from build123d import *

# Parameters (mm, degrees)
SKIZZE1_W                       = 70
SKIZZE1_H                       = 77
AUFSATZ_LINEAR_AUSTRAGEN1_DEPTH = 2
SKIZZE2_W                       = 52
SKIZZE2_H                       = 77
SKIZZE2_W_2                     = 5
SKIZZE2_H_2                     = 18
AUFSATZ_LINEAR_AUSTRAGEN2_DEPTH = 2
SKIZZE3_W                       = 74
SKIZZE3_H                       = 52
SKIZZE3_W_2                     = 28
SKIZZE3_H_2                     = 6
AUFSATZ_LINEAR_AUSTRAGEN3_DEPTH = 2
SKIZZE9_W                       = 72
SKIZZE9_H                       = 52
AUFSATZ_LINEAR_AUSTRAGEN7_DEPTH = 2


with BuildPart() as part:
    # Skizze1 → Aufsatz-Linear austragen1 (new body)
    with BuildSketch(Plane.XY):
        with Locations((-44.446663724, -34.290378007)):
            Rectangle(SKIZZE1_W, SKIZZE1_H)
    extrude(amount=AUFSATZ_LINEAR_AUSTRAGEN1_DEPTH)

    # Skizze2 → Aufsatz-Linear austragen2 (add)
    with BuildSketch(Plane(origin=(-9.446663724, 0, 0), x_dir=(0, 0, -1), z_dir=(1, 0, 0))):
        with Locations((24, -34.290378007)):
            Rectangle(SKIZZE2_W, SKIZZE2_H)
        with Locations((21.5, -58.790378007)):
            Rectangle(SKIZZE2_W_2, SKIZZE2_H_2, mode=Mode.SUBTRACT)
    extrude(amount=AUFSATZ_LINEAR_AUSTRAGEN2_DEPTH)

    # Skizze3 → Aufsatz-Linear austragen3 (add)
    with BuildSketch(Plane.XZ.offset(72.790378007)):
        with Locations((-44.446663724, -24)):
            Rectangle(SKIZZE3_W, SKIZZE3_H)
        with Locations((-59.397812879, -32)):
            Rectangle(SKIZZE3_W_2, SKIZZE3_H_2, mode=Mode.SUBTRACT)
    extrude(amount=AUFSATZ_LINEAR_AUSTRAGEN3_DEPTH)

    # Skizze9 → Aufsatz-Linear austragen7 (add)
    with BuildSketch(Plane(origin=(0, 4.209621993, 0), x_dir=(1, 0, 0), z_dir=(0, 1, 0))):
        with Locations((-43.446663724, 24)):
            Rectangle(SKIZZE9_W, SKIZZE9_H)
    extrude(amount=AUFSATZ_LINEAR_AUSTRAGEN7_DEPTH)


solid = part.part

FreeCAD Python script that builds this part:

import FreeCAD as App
import Part
import Sketcher
from FreeCAD import Vector
Q = App.Units.Quantity


def add_polygon(sketch, points):
    """Adds a closed chain of lines whose ends are joined by coincident constraints."""
    first, n = sketch.GeometryCount, len(points)
    for a, b in zip(points, points[1:] + points[:1]):
        sketch.addGeometry(Part.LineSegment(App.Vector(*a, 0), App.Vector(*b, 0)), False)
    for i in range(n):
        sketch.addConstraint(Sketcher.Constraint("Coincident", first + i, 2, first + (i + 1) % n, 1))

doc = App.newDocument("Part")
params = doc.addObject("Spreadsheet::Sheet", "Params")
for row, (alias, value) in enumerate([
    ("sketch1_width", "70 mm"),
    ("sketch1_height", "77 mm"),
    ("pad1_length", "2 mm"),
    ("sketch2_width", "77 mm"),
    ("sketch2_width2", "18 mm"),
    ("sketch2_height", "52 mm"),
    ("sketch2_height2", "5 mm"),
    ("pad2_length", "2 mm"),
    ("sketch3_width", "74 mm"),
    ("sketch3_width2", "28 mm"),
    ("sketch3_height", "52 mm"),
    ("sketch3_height2", "6 mm"),
    ("pad3_length", "2 mm"),
    ("sketch4_width", "72 mm"),
    ("sketch4_height", "52 mm"),
    ("pad4_length", "2 mm"),
], start=1):
    params.set(f"A{row}", alias)
    params.set(f"B{row}", "=" + value)
    params.setAlias(f"B{row}", alias)

body = doc.addObject("PartDesign::Body", "Body")

# Sketch on XY plane
sketch1 = doc.addObject("Sketcher::SketchObject", "Sketch")
body.addObject(sketch1)
sketch1.AttachmentSupport = (doc.XY_Plane, [""])
sketch1.MapMode = "FlatFace"
add_polygon(sketch1, [(-79, 4), (-79, -73), (-9, -73), (-9, 4)])  # lines 0-3
sketch1.addConstraint([
    Sketcher.Constraint("Vertical", 0),
    Sketcher.Constraint("Horizontal", 1),
    Sketcher.Constraint("Vertical", 2),
    Sketcher.Constraint("Horizontal", 3),
    Sketcher.Constraint("DistanceX", 1, 1, 1, 2, Q("70 mm")),
    Sketcher.Constraint("DistanceY", 0, 2, 0, 1, Q("77 mm")),
    Sketcher.Constraint("DistanceY", 0, 2, -1, 1, Q("72.790378 mm")),
    Sketcher.Constraint("DistanceX", 0, 2, -1, 1, Q("79.446664 mm")),
])
sketch1.setExpression("Constraints[8]", "Params.sketch1_width")
sketch1.setExpression("Constraints[9]", "Params.sketch1_height")
pad1 = doc.addObject("PartDesign::Pad", "Pad")
body.addObject(pad1)
pad1.Profile = sketch1
pad1.setExpression("Length", "Params.pad1_length")

# Sketch on YZ plane
sketch2 = doc.addObject("Sketcher::SketchObject", "Sketch001")
body.addObject(sketch2)
sketch2.AttachmentSupport = (doc.YZ_Plane, [""])
sketch2.MapMode = "FlatFace"
sketch2.AttachmentOffset = App.Placement(Vector(0, 0, -9.446664), App.Rotation())
add_polygon(sketch2, [(4, 2), (-73, 2), (-73, -50), (4, -50)])  # lines 0-3
add_polygon(sketch2, [(-68, -24), (-68, -19), (-50, -19), (-50, -24)])  # lines 4-7
sketch2.addConstraint([
    Sketcher.Constraint("Horizontal", 0),
    Sketcher.Constraint("Vertical", 1),
    Sketcher.Constraint("Horizontal", 2),
    Sketcher.Constraint("Vertical", 3),
    Sketcher.Constraint("Vertical", 4),
    Sketcher.Constraint("Horizontal", 5),
    Sketcher.Constraint("Vertical", 6),
    Sketcher.Constraint("Horizontal", 7),
    Sketcher.Constraint("DistanceX", 0, 2, 0, 1, Q("77 mm")),
    Sketcher.Constraint("DistanceX", 5, 1, 5, 2, Q("18 mm")),
    Sketcher.Constraint("DistanceY", 1, 2, 1, 1, Q("52 mm")),
    Sketcher.Constraint("DistanceY", 4, 1, 4, 2, Q("5 mm")),
    Sketcher.Constraint("DistanceY", -1, 1, 0, 2, Q("2 mm")),
    Sketcher.Constraint("DistanceY", 4, 2, -1, 1, Q("19 mm")),
    Sketcher.Constraint("DistanceX", 0, 2, 4, 2, Q("5 mm")),
    Sketcher.Constraint("DistanceX", 0, 2, -1, 1, Q("72.790378 mm")),
])
sketch2.setExpression("Constraints[16]", "Params.sketch2_width")
sketch2.setExpression("Constraints[17]", "Params.sketch2_width2")
sketch2.setExpression("Constraints[18]", "Params.sketch2_height")
sketch2.setExpression("Constraints[19]", "Params.sketch2_height2")
pad2 = doc.addObject("PartDesign::Pad", "Pad001")
body.addObject(pad2)
pad2.Profile = sketch2
pad2.setExpression("Length", "Params.pad2_length")

# Sketch on XZ plane
sketch3 = doc.addObject("Sketcher::SketchObject", "Sketch002")
body.addObject(sketch3)
sketch3.AttachmentSupport = (doc.XZ_Plane, [""])
sketch3.MapMode = "FlatFace"
sketch3.AttachmentOffset = App.Placement(Vector(0, 0, 72.790378), App.Rotation())
add_polygon(sketch3, [(-81, 2), (-81, -50), (-7, -50), (-7, 2)])  # lines 0-3
add_polygon(sketch3, [(-45, -35), (-73, -35), (-73, -29), (-45, -29)])  # lines 4-7
sketch3.addConstraint([
    Sketcher.Constraint("Vertical", 0),
    Sketcher.Constraint("Horizontal", 1),
    Sketcher.Constraint("Vertical", 2),
    Sketcher.Constraint("Horizontal", 3),
    Sketcher.Constraint("Horizontal", 4),
    Sketcher.Constraint("Vertical", 5),
    Sketcher.Constraint("Horizontal", 6),
    Sketcher.Constraint("Vertical", 7),
    Sketcher.Constraint("DistanceX", 1, 1, 1, 2, Q("74 mm")),
    Sketcher.Constraint("DistanceX", 4, 2, 4, 1, Q("28 mm")),
    Sketcher.Constraint("DistanceY", 0, 2, 0, 1, Q("52 mm")),
    Sketcher.Constraint("DistanceY", 5, 1, 5, 2, Q("6 mm")),
    Sketcher.Constraint("DistanceY", 0, 2, -1, 1, Q("50 mm")),
    Sketcher.Constraint("DistanceY", 4, 2, -1, 1, Q("35 mm")),
    Sketcher.Constraint("DistanceX", 0, 2, 4, 2, Q("8.048851 mm")),
    Sketcher.Constraint("DistanceX", 0, 2, -1, 1, Q("81.446664 mm")),
])
sketch3.setExpression("Constraints[16]", "Params.sketch3_width")
sketch3.setExpression("Constraints[17]", "Params.sketch3_width2")
sketch3.setExpression("Constraints[18]", "Params.sketch3_height")
sketch3.setExpression("Constraints[19]", "Params.sketch3_height2")
pad3 = doc.addObject("PartDesign::Pad", "Pad002")
body.addObject(pad3)
pad3.Profile = sketch3
pad3.setExpression("Length", "Params.pad3_length")

# Sketch on XZ plane
sketch4 = doc.addObject("Sketcher::SketchObject", "Sketch003")
body.addObject(sketch4)
sketch4.AttachmentSupport = (doc.XZ_Plane, [""])
sketch4.MapMode = "FlatFace"
sketch4.AttachmentOffset = App.Placement(Vector(0, 0, -4.209622), App.Rotation())
add_polygon(sketch4, [(-79, -50), (-79, 2), (-7, 2), (-7, -50)])  # lines 0-3
sketch4.addConstraint([
    Sketcher.Constraint("Vertical", 0),
    Sketcher.Constraint("Horizontal", 1),
    Sketcher.Constraint("Vertical", 2),
    Sketcher.Constraint("Horizontal", 3),
    Sketcher.Constraint("DistanceX", 1, 1, 1, 2, Q("72 mm")),
    Sketcher.Constraint("DistanceY", 0, 1, 0, 2, Q("52 mm")),
    Sketcher.Constraint("DistanceY", -1, 1, 0, 2, Q("2 mm")),
    Sketcher.Constraint("DistanceX", 0, 2, -1, 1, Q("79.446664 mm")),
])
sketch4.setExpression("Constraints[8]", "Params.sketch4_width")
sketch4.setExpression("Constraints[9]", "Params.sketch4_height")
pad4 = doc.addObject("PartDesign::Pad", "Pad003")
body.addObject(pad4)
pad4.Profile = sketch4
pad4.setExpression("Length", "Params.pad4_length")
pad4.Reversed = True

doc.recompute()
